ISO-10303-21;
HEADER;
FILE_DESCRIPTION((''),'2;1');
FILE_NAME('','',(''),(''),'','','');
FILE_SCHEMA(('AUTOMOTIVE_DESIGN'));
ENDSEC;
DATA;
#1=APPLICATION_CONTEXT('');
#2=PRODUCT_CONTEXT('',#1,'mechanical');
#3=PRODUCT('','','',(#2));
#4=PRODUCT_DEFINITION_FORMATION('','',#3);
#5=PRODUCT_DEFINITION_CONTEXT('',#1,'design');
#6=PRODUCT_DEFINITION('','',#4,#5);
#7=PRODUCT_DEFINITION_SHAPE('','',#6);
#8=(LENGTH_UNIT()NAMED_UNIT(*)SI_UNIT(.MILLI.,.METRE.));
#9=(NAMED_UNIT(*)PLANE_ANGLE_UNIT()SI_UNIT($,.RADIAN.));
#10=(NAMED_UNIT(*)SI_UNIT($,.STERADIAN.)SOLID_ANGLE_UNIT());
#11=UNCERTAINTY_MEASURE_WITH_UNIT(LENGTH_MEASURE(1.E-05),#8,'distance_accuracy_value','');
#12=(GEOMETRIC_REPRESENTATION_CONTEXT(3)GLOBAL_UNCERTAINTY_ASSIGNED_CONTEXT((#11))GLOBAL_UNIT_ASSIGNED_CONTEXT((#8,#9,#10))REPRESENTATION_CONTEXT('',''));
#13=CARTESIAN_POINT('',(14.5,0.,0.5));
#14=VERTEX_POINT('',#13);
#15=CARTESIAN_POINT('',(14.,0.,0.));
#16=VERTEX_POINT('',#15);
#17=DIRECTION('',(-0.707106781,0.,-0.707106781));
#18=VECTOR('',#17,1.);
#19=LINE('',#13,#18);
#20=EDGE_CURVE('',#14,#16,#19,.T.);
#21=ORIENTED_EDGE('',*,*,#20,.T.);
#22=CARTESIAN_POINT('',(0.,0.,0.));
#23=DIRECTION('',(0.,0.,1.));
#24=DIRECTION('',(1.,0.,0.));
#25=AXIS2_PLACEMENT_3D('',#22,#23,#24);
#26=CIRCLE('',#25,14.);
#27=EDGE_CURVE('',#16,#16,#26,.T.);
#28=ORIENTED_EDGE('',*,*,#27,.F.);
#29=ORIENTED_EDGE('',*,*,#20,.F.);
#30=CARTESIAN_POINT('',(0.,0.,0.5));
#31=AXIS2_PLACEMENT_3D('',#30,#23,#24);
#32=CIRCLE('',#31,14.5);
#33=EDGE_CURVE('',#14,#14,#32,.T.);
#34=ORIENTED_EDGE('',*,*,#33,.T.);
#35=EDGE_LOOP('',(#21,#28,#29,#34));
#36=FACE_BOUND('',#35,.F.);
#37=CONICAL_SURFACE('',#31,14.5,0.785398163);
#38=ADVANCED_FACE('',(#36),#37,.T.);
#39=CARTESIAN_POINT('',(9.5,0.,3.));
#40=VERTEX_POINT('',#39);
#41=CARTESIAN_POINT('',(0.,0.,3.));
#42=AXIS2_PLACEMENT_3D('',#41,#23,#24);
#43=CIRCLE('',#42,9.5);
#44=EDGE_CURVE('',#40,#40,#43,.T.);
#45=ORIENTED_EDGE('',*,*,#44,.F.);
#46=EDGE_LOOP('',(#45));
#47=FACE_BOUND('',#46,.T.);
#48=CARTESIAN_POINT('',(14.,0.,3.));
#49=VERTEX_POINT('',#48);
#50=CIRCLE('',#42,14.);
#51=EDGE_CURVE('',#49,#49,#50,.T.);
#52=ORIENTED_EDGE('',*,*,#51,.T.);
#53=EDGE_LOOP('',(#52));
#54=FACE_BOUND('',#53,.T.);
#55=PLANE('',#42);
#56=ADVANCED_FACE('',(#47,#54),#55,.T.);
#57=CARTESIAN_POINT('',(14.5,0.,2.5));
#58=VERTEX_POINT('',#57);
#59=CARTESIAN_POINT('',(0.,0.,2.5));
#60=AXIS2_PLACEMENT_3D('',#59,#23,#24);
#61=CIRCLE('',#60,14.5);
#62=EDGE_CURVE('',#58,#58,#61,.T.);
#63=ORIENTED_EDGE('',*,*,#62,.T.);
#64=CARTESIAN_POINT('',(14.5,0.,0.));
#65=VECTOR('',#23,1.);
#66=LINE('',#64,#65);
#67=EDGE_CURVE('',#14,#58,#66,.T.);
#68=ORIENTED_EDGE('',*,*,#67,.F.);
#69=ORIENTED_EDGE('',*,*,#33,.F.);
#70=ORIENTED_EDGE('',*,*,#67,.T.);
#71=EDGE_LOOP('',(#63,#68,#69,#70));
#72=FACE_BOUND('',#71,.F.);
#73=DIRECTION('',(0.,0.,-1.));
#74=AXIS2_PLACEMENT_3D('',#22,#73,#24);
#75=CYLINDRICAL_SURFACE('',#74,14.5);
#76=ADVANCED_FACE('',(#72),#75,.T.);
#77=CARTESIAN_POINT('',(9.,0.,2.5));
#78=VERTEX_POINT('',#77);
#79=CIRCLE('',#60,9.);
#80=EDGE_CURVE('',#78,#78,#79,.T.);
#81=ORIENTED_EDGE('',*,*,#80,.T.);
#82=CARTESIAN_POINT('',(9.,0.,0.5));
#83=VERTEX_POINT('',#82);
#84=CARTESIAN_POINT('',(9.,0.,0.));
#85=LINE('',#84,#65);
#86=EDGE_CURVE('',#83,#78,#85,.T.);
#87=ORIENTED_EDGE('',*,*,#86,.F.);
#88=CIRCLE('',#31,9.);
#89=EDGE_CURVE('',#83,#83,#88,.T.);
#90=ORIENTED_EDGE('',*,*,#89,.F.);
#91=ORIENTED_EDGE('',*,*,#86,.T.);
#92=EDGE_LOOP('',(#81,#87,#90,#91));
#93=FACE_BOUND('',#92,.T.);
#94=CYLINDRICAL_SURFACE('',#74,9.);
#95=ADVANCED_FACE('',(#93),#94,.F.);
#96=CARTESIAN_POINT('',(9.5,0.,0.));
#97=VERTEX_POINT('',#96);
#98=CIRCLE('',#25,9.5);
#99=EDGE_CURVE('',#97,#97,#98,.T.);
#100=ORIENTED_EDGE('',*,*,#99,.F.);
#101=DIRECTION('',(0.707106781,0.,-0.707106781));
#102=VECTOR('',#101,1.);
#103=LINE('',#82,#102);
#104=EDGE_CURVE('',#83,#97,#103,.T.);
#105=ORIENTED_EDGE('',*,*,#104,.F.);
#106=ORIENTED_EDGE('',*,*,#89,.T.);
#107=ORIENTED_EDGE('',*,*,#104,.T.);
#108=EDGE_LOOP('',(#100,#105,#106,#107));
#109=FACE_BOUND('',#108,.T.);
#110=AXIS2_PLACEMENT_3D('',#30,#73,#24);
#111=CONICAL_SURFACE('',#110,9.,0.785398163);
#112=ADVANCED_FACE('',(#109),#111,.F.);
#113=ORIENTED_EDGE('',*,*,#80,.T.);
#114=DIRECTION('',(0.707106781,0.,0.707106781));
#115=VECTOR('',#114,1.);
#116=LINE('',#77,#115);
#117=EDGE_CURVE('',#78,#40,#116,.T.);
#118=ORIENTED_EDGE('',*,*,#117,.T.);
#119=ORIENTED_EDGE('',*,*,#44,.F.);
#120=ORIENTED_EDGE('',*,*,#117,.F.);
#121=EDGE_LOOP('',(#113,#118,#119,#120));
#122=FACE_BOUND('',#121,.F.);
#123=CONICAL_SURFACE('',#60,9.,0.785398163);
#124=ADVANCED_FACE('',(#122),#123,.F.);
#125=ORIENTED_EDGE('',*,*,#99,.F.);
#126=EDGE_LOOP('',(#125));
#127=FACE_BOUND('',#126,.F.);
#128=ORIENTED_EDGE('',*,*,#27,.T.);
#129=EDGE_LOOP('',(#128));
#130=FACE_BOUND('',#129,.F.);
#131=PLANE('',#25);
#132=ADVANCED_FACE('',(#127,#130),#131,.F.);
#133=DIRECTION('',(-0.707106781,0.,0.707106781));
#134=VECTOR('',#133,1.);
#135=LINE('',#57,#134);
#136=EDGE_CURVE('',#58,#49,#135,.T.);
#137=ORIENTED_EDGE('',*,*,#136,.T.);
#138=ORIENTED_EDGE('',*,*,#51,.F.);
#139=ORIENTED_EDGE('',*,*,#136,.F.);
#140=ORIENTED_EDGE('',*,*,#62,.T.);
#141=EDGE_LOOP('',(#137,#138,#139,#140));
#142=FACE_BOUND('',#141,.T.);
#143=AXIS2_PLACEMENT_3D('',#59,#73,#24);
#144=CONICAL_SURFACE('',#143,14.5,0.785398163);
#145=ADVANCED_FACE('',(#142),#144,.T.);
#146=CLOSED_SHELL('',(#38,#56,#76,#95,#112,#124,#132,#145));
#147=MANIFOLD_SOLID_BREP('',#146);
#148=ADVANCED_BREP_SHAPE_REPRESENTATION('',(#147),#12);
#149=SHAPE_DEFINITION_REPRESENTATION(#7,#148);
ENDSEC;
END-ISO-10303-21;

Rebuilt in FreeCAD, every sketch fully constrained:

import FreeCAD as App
import Part
import Sketcher


def edges_at(feature, points):
    """Names of the edges that pass closest to the given points."""
    edges = feature.Shape.Edges
    near = lambda p: min(range(len(edges)), key=lambda i: edges[i].distToShape(Part.Vertex(*p))[0])
    return sorted({f"Edge{near(p) + 1}" for p in points})

doc = App.newDocument("Part")
body = doc.addObject("PartDesign::Body", "Body")

sketch1 = body.newObject("Sketcher::SketchObject", "Sketch")
sketch1.AttachmentSupport = (doc.getObject("XY_Plane"), [""])
sketch1.MapMode = "FlatFace"
sketch1.addGeometry(Part.Circle(App.Vector(0, 0, 0), App.Vector(0, 0, 1), 14), False)
sketch1.addGeometry(Part.Circle(App.Vector(0, 0, 0), App.Vector(0, 0, 1), 9), False)
sketch1.addConstraint(Sketcher.Constraint("Coincident", 0, 3, -1, 1))
sketch1.addConstraint(Sketcher.Constraint("Coincident", 1, 3, -1, 1))
sketch1.addConstraint(Sketcher.Constraint("Diameter", 0, 29.0))
sketch1.addConstraint(Sketcher.Constraint("Diameter", 1, 18.0))
pad1 = body.newObject("PartDesign::Pad", "Pad")
pad1.Profile = sketch1
pad1.Length = 3
doc.recompute()

chamfer = body.newObject("PartDesign::Chamfer", "Chamfer")
chamfer.Base = (pad1, edges_at(pad1, [
    (-9, 0, 3),
    (-9, 0, 0),
    (-14.5, 0, 3),
    (-14.5, 0, 0),
]))
chamfer.Size = 0.5

doc.recompute()
